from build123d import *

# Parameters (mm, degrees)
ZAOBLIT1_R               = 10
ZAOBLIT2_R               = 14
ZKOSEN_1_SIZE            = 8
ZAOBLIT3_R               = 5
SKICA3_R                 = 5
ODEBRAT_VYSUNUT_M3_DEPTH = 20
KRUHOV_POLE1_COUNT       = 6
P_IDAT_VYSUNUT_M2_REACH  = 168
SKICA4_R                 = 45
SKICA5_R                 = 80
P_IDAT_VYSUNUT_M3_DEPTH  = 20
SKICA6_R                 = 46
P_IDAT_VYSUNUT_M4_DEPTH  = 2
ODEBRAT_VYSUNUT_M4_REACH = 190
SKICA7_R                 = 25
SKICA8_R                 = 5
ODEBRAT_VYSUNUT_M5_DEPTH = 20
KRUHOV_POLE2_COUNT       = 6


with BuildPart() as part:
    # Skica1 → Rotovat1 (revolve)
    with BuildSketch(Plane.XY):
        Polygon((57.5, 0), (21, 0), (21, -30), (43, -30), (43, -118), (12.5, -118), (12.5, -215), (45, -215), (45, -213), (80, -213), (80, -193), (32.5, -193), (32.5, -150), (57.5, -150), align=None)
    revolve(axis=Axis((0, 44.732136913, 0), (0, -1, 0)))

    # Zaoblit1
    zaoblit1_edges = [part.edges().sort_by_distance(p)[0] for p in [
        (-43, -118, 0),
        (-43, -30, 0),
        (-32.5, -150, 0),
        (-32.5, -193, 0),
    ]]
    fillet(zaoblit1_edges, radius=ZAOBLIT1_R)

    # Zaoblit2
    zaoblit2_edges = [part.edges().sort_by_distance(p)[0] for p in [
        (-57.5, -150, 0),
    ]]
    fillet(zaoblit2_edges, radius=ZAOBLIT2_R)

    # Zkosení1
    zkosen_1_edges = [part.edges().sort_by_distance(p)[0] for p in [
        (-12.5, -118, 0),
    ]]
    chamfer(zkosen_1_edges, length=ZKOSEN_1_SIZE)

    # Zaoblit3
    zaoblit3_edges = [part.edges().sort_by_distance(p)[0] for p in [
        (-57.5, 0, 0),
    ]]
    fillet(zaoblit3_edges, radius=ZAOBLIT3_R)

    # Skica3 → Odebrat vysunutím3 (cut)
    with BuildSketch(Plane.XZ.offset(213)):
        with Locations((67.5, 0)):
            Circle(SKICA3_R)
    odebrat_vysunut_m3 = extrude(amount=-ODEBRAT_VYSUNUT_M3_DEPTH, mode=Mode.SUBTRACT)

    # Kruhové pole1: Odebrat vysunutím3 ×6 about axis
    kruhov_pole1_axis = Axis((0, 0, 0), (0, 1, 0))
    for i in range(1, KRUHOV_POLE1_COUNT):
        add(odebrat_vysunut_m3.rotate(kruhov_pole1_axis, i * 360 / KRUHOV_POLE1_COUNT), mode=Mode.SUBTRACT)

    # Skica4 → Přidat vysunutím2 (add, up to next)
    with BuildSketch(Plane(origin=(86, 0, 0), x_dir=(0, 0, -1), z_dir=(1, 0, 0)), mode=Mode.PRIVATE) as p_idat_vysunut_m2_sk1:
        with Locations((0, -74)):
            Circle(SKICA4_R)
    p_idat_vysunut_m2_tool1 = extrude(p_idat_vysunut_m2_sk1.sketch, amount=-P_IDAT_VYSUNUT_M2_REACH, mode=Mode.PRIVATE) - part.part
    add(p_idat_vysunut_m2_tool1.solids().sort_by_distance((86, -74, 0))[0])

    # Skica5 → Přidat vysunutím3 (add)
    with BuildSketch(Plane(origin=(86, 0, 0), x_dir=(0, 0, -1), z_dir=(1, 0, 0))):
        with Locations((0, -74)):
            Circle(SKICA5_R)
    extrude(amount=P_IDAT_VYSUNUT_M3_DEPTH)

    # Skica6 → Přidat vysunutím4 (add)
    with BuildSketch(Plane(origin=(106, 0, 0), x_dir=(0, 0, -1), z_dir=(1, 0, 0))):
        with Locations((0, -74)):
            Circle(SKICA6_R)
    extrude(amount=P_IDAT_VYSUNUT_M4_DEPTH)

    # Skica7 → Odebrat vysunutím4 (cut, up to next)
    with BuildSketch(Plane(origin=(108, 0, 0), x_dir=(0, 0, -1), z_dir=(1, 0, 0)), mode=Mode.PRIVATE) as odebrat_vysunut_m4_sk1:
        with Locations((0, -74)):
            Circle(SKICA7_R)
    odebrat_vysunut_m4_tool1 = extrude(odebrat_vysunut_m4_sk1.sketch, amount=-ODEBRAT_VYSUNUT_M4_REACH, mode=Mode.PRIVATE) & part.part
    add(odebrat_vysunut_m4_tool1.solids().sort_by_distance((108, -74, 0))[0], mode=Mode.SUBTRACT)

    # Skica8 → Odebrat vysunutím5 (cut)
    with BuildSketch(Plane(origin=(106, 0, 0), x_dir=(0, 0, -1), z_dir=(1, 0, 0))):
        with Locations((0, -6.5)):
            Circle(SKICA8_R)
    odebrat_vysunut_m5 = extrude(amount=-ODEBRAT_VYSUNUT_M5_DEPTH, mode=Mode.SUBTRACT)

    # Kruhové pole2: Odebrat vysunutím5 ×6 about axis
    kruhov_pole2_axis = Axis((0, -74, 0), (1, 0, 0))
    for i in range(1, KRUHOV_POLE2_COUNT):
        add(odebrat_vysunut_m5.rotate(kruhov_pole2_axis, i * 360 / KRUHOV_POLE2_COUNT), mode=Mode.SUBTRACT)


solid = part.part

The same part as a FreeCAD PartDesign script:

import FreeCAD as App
import Part
import Sketcher
from FreeCAD import Vector


def edges_at(feature, points):
    """Names of the edges that pass closest to the given points."""
    edges = feature.Shape.Edges
    near = lambda p: min(range(len(edges)), key=lambda i: edges[i].distToShape(Part.Vertex(*p))[0])
    return sorted({f"Edge{near(p) + 1}" for p in points})

doc = App.newDocument("Part")
body = doc.addObject("PartDesign::Body", "Body")

# Sketch on XY plane
sketch1 = doc.addObject("Sketcher::SketchObject", "Sketch")
body.addObject(sketch1)
sketch1.AttachmentSupport = (doc.XY_Plane, [""])
sketch1.MapMode = "FlatFace"
sketch1.addGeometry(Part.LineSegment(Vector(57.5, 0, 0), Vector(21, 0, 0)), False)
sketch1.addGeometry(Part.LineSegment(Vector(21, 0, 0), Vector(21, -30, 0)), False)
sketch1.addGeometry(Part.LineSegment(Vector(21, -30, 0), Vector(43, -30, 0)), False)
sketch1.addGeometry(Part.LineSegment(Vector(43, -30, 0), Vector(43, -118, 0)), False)
sketch1.addGeometry(Part.LineSegment(Vector(43, -118, 0), Vector(12.5, -118, 0)), False)
sketch1.addGeometry(Part.LineSegment(Vector(12.5, -118, 0), Vector(12.5, -215, 0)), False)
sketch1.addGeometry(Part.LineSegment(Vector(12.5, -215, 0), Vector(45, -215, 0)), False)
sketch1.addGeometry(Part.LineSegment(Vector(45, -215, 0), Vector(45, -213, 0)), False)
sketch1.addGeometry(Part.LineSegment(Vector(45, -213, 0), Vector(80, -213, 0)), False)
sketch1.addGeometry(Part.LineSegment(Vector(80, -213, 0), Vector(80, -193, 0)), False)
sketch1.addGeometry(Part.LineSegment(Vector(80, -193, 0), Vector(32.5, -193, 0)), False)
sketch1.addGeometry(Part.LineSegment(Vector(32.5, -193, 0), Vector(32.5, -150, 0)), False)
sketch1.addGeometry(Part.LineSegment(Vector(32.5, -150, 0), Vector(57.5, -150, 0)), False)
sketch1.addGeometry(Part.LineSegment(Vector(57.5, -150, 0), Vector(57.5, 0, 0)), False)
sketch1.addConstraint(Sketcher.Constraint("Coincident", 0, 2, 1, 1))
sketch1.addConstraint(Sketcher.Constraint("Coincident", 1, 2, 2, 1))
sketch1.addConstraint(Sketcher.Constraint("Coincident", 2, 2, 3, 1))
sketch1.addConstraint(Sketcher.Constraint("Coincident", 3, 2, 4, 1))
sketch1.addConstraint(Sketcher.Constraint("Coincident", 4, 2, 5, 1))
sketch1.addConstraint(Sketcher.Constraint("Coincident", 5, 2, 6, 1))
sketch1.addConstraint(Sketcher.Constraint("Coincident", 6, 2, 7, 1))
sketch1.addConstraint(Sketcher.Constraint("Coincident", 7, 2, 8, 1))
sketch1.addConstraint(Sketcher.Constraint("Coincident", 8, 2, 9, 1))
sketch1.addConstraint(Sketcher.Constraint("Coincident", 9, 2, 10, 1))
sketch1.addConstraint(Sketcher.Constraint("Coincident", 10, 2, 11, 1))
sketch1.addConstraint(Sketcher.Constraint("Coincident", 11, 2, 12, 1))
sketch1.addConstraint(Sketcher.Constraint("Coincident", 12, 2, 13, 1))
sketch1.addConstraint(Sketcher.Constraint("Coincident", 13, 2, 0, 1))
sketch1.addConstraint(Sketcher.Constraint("Horizontal", 0))
sketch1.addConstraint(Sketcher.Constraint("Vertical", 1))
sketch1.addConstraint(Sketcher.Constraint("Horizontal", 2))
sketch1.addConstraint(Sketcher.Constraint("Vertical", 3))
sketch1.addConstraint(Sketcher.Constraint("Horizontal", 4))
sketch1.addConstraint(Sketcher.Constraint("Vertical", 5))
sketch1.addConstraint(Sketcher.Constraint("Horizontal", 6))
sketch1.addConstraint(Sketcher.Constraint("Vertical", 7))
sketch1.addConstraint(Sketcher.Constraint("Horizontal", 8))
sketch1.addConstraint(Sketcher.Constraint("Vertical", 9))
sketch1.addConstraint(Sketcher.Constraint("Horizontal", 10))
sketch1.addConstraint(Sketcher.Constraint("Vertical", 11))
sketch1.addConstraint(Sketcher.Constraint("Horizontal", 12))
sketch1.addConstraint(Sketcher.Constraint("Vertical", 13))
sketch1.addConstraint(Sketcher.Constraint("PointOnObject", 0, 2, -1))
sketch1.addConstraint(Sketcher.Constraint("DistanceX", 2, 1, 2, 2, 22.0))
sketch1.addConstraint(Sketcher.Constraint("DistanceX", 8, 1, 8, 2, 35.0))
sketch1.addConstraint(Sketcher.Constraint("DistanceX", 12, 1, 12, 2, 25.0))
sketch1.addConstraint(Sketcher.Constraint("DistanceY", 1, 2, 1, 1, 30.0))
sketch1.addConstraint(Sketcher.Constraint("DistanceY", 3, 2, 3, 1, 88.0))
sketch1.addConstraint(Sketcher.Constraint("DistanceY", 5, 2, 5, 1, 97.0))
sketch1.addConstraint(Sketcher.Constraint("DistanceY", 7, 1, 7, 2, 2.0))
sketch1.addConstraint(Sketcher.Constraint("DistanceY", 9, 1, 9, 2, 20.0))
sketch1.addConstraint(Sketcher.Constraint("DistanceY", 11, 1, 11, 2, 43.0))
sketch1.addConstraint(Sketcher.Constraint("DistanceX", 0, 2, 0, 1, 36.5))
sketch1.addConstraint(Sketcher.Constraint("DistanceX", 4, 2, 4, 1, 30.5))
sketch1.addConstraint(Sketcher.Constraint("DistanceX", 6, 1, 6, 2, 32.5))
sketch1.addConstraint(Sketcher.Constraint("DistanceX", -1, 1, 0, 2, 21.0))
revolution = doc.addObject("PartDesign::Revolution", "Revolution")
body.addObject(revolution)
revolution.Profile = sketch1
revolution.ReferenceAxis = (sketch1, ["V_Axis"])
revolution.Angle = 360
doc.recompute()

fillet = doc.addObject("PartDesign::Fillet", "Fillet")
body.addObject(fillet)
fillet.Base = (revolution, edges_at(revolution, [
    (-43, -118, 0),
    (-43, -30, 0),
    (-32.5, -150, 0),
    (-32.5, -193, 0),
]))
fillet.Radius = 10
doc.recompute()

fillet2 = doc.addObject("PartDesign::Fillet", "Fillet001")
body.addObject(fillet2)
fillet2.Base = (fillet, edges_at(fillet, [(-57.5, -150, 0)]))
fillet2.Radius = 14
doc.recompute()

chamfer = doc.addObject("PartDesign::Chamfer", "Chamfer")
body.addObject(chamfer)
chamfer.Base = (fillet2, edges_at(fillet2, [(-12.5, -118, 0)]))
chamfer.Size = 8
doc.recompute()

fillet3 = doc.addObject("PartDesign::Fillet", "Fillet002")
body.addObject(fillet3)
fillet3.Base = (chamfer, edges_at(chamfer, [(-57.5, 0, 0)]))
fillet3.Radius = 5

# Sketch on XZ plane
sketch2 = doc.addObject("Sketcher::SketchObject", "Sketch001")
body.addObject(sketch2)
sketch2.AttachmentSupport = (doc.XZ_Plane, [""])
sketch2.MapMode = "FlatFace"
sketch2.AttachmentOffset = App.Placement(Vector(0, 0, 213), App.Rotation())
sketch2.addGeometry(Part.Circle(Vector(68, 0, 0), Vector(0, 0, 1), 5), False)
sketch2.addConstraint(Sketcher.Constraint("PointOnObject", 0, 3, -1))
sketch2.addConstraint(Sketcher.Constraint("Diameter", 0, 10.0))
sketch2.addConstraint(Sketcher.Constraint("DistanceX", -1, 1, 0, 3, 67.5))
pocket1 = doc.addObject("PartDesign::Pocket", "Pocket")
body.addObject(pocket1)
pocket1.Profile = sketch2
pocket1.Length = 20
doc.recompute()

polarpattern = doc.addObject("PartDesign::PolarPattern", "PolarPattern")
body.addObject(polarpattern)
polarpattern.Originals = [pocket1]
polarpattern.Axis = (doc.Y_Axis, [""])
polarpattern.Angle = 360
polarpattern.Occurrences = 6
body.Tip = polarpattern

# Sketch on YZ plane
sketch3 = doc.addObject("Sketcher::SketchObject", "Sketch002")
body.addObject(sketch3)
sketch3.AttachmentSupport = (doc.YZ_Plane, [""])
sketch3.MapMode = "FlatFace"
sketch3.AttachmentOffset = App.Placement(Vector(0, 0, 86), App.Rotation())
sketch3.addGeometry(Part.Circle(Vector(-74, 0, 0), Vector(0, 0, 1), 45), False)
sketch3.addConstraint(Sketcher.Constraint("PointOnObject", 0, 3, -1))
sketch3.addConstraint(Sketcher.Constraint("Diameter", 0, 90.0))
sketch3.addConstraint(Sketcher.Constraint("DistanceX", 0, 3, -1, 1, 74.0))
pad1 = doc.addObject("PartDesign::Pad", "Pad")
body.addObject(pad1)
pad1.Profile = sketch3
pad1.Type = "UpToFirst"
pad1.Reversed = True

# Sketch on YZ plane
sketch4 = doc.addObject("Sketcher::SketchObject", "Sketch003")
body.addObject(sketch4)
sketch4.AttachmentSupport = (doc.YZ_Plane, [""])
sketch4.MapMode = "FlatFace"
sketch4.AttachmentOffset = App.Placement(Vector(0, 0, 86), App.Rotation())
sketch4.addGeometry(Part.Circle(Vector(-74, 0, 0), Vector(0, 0, 1), 80), False)
sketch4.addConstraint(Sketcher.Constraint("PointOnObject", 0, 3, -1))
sketch4.addConstraint(Sketcher.Constraint("Diameter", 0, 160.0))
sketch4.addConstraint(Sketcher.Constraint("DistanceX", 0, 3, -1, 1, 74.0))
pad2 = doc.addObject("PartDesign::Pad", "Pad001")
body.addObject(pad2)
pad2.Profile = sketch4
pad2.Length = 20

# Sketch on YZ plane
sketch5 = doc.addObject("Sketcher::SketchObject", "Sketch004")
body.addObject(sketch5)
sketch5.AttachmentSupport = (doc.YZ_Plane, [""])
sketch5.MapMode = "FlatFace"
sketch5.AttachmentOffset = App.Placement(Vector(0, 0, 106), App.Rotation())
sketch5.addGeometry(Part.Circle(Vector(-74, 0, 0), Vector(0, 0, 1), 46), False)
sketch5.addConstraint(Sketcher.Constraint("PointOnObject", 0, 3, -1))
sketch5.addConstraint(Sketcher.Constraint("Diameter", 0, 92.0))
sketch5.addConstraint(Sketcher.Constraint("DistanceX", 0, 3, -1, 1, 74.0))
pad3 = doc.addObject("PartDesign::Pad", "Pad002")
body.addObject(pad3)
pad3.Profile = sketch5
pad3.Length = 2

# Sketch on YZ plane
sketch6 = doc.addObject("Sketcher::SketchObject", "Sketch005")
body.addObject(sketch6)
sketch6.AttachmentSupport = (doc.YZ_Plane, [""])
sketch6.MapMode = "FlatFace"
sketch6.AttachmentOffset = App.Placement(Vector(0, 0, 108), App.Rotation())
sketch6.addGeometry(Part.Circle(Vector(-74, 0, 0), Vector(0, 0, 1), 25), False)
sketch6.addConstraint(Sketcher.Constraint("PointOnObject", 0, 3, -1))
sketch6.addConstraint(Sketcher.Constraint("Diameter", 0, 50.0))
sketch6.addConstraint(Sketcher.Constraint("DistanceX", 0, 3, -1, 1, 74.0))
pocket2 = doc.addObject("PartDesign::Pocket", "Pocket001")
body.addObject(pocket2)
pocket2.Profile = sketch6
pocket2.Length = 73.014289

# Sketch on YZ plane
sketch7 = doc.addObject("Sketcher::SketchObject", "Sketch006")
body.addObject(sketch7)
sketch7.AttachmentSupport = (doc.YZ_Plane, [""])
sketch7.MapMode = "FlatFace"
sketch7.AttachmentOffset = App.Placement(Vector(0, 0, 106), App.Rotation())
sketch7.addGeometry(Part.Circle(Vector(-6, 0, 0), Vector(0, 0, 1), 5), False)
sketch7.addConstraint(Sketcher.Constraint("PointOnObject", 0, 3, -1))
sketch7.addConstraint(Sketcher.Constraint("Diameter", 0, 10.0))
sketch7.addConstraint(Sketcher.Constraint("DistanceX", 0, 3, -1, 1, 6.5))
pocket3 = doc.addObject("PartDesign::Pocket", "Pocket002")
body.addObject(pocket3)
pocket3.Profile = sketch7
pocket3.Length = 20
doc.recompute()

datumline = doc.addObject("PartDesign::Line", "DatumLine")
body.addObject(datumline)
datumline.Placement = App.Placement(Vector(0, -74, 0), App.Rotation(Vector(0, 0, 1), Vector(1, 0, 0)))
polarpattern2 = doc.addObject("PartDesign::PolarPattern", "PolarPattern001")
body.addObject(polarpattern2)
polarpattern2.Originals = [pocket3]
polarpattern2.Axis = (datumline, [""])
polarpattern2.Angle = 360
polarpattern2.Occurrences = 6
body.Tip = polarpattern2

doc.recompute()
